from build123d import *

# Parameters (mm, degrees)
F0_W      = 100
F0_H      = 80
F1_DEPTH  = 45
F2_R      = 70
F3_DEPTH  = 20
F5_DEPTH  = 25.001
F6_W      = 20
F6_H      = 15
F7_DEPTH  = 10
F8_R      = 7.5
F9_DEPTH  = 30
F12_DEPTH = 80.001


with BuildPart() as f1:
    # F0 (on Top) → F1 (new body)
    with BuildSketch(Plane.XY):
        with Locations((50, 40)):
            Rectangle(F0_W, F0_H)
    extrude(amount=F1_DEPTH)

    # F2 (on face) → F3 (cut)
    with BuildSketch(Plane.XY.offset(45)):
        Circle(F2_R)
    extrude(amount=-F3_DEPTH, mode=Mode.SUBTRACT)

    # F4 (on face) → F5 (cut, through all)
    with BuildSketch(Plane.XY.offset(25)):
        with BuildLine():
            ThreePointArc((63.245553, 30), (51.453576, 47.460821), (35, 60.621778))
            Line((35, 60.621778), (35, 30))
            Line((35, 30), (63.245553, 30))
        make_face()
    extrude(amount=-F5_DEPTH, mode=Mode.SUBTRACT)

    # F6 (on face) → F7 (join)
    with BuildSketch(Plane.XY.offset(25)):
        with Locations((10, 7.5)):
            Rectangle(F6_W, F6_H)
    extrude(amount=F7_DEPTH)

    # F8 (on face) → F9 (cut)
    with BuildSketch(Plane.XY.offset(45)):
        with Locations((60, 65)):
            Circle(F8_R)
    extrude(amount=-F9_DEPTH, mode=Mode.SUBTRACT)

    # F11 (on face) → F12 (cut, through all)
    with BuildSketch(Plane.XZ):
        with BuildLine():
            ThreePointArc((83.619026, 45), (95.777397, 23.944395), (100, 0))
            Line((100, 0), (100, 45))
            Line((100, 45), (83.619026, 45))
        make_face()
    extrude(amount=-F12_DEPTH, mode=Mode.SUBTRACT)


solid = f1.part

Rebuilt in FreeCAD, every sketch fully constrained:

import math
import FreeCAD as App
import Part
import Sketcher
Q = App.Units.Quantity

doc = App.newDocument("Part")
body = doc.addObject("PartDesign::Body", "Body")

# Sketch on XY plane
sketch1 = body.newObject("Sketcher::SketchObject", "Sketch")
sketch1.AttachmentSupport = (doc.getObject("XY_Plane"), [""])
sketch1.MapMode = "FlatFace"
sketch1.addGeometry([
    Part.LineSegment(App.Vector(0, 80, 0), App.Vector(0, 0, 0)),
    Part.LineSegment(App.Vector(0, 0, 0), App.Vector(100, 0, 0)),
    Part.LineSegment(App.Vector(100, 0, 0), App.Vector(100, 80, 0)),
    Part.LineSegment(App.Vector(100, 80, 0), App.Vector(0, 80, 0)),
], False)
sketch1.addConstraint([
    Sketcher.Constraint("Coincident", 0, 2, 1, 1),
    Sketcher.Constraint("Coincident", 1, 2, 2, 1),
    Sketcher.Constraint("Coincident", 2, 2, 3, 1),
    Sketcher.Constraint("Coincident", 3, 2, 0, 1),
    Sketcher.Constraint("Vertical", 0),
    Sketcher.Constraint("Horizontal", 1),
    Sketcher.Constraint("Vertical", 2),
    Sketcher.Constraint("Horizontal", 3),
    Sketcher.Constraint("Coincident", 0, 2, -1, 1),
    Sketcher.Constraint("DistanceX", 1, 1, 1, 2, Q("100 mm")),
    Sketcher.Constraint("DistanceY", 0, 2, 0, 1, Q("80 mm")),
])
pad1 = body.newObject("PartDesign::Pad", "Pad")
pad1.Profile = sketch1
pad1.Length = 45

# Sketch on XY plane
sketch2 = body.newObject("Sketcher::SketchObject", "Sketch001")
sketch2.AttachmentSupport = (doc.getObject("XY_Plane"), [""])
sketch2.MapMode = "FlatFace"
sketch2.AttachmentOffset = App.Placement(App.Vector(0, 0, 45), App.Rotation())
sketch2.addGeometry(Part.Circle(App.Vector(0, 0, 0), App.Vector(0, 0, 1), 70), False)
sketch2.addConstraint([
    Sketcher.Constraint("Coincident", 0, 3, -1, 1),
    Sketcher.Constraint("Diameter", 0, Q("140 mm")),
])
pocket1 = body.newObject("PartDesign::Pocket", "Pocket")
pocket1.Profile = sketch2
pocket1.Length = 20

# Sketch on XY plane
sketch3 = body.newObject("Sketcher::SketchObject", "Sketch002")
sketch3.AttachmentSupport = (doc.getObject("XY_Plane"), [""])
sketch3.MapMode = "FlatFace"
sketch3.AttachmentOffset = App.Placement(App.Vector(0, 0, 25), App.Rotation())
sketch3.addGeometry([
    Part.ArcOfCircle(Part.Circle(App.Vector(0, 0, 0), App.Vector(0, 0, 1), 70), math.radians(25), math.radians(60)),
    Part.LineSegment(App.Vector(35, 61, 0), App.Vector(35, 30, 0)),
    Part.LineSegment(App.Vector(35, 30, 0), App.Vector(63, 30, 0)),
], False)
sketch3.addConstraint([
    Sketcher.Constraint("Coincident", 0, 2, 1, 1),
    Sketcher.Constraint("Coincident", 1, 2, 2, 1),
    Sketcher.Constraint("Coincident", 2, 2, 0, 1),
    Sketcher.Constraint("Vertical", 1),
    Sketcher.Constraint("Horizontal", 2),
    Sketcher.Constraint("Coincident", 0, 3, -1, 1),
    Sketcher.Constraint("DistanceX", -1, 1, 0, 2, Q("35 mm")),
    Sketcher.Constraint("DistanceY", -1, 1, 1, 2, Q("30 mm")),
    Sketcher.Constraint("Radius", 0, Q("69.999993 mm")),
])
pocket2 = body.newObject("PartDesign::Pocket", "Pocket001")
pocket2.Profile = sketch3
pocket2.Type = "ThroughAll"

# Sketch on XY plane
sketch4 = body.newObject("Sketcher::SketchObject", "Sketch003")
sketch4.AttachmentSupport = (doc.getObject("XY_Plane"), [""])
sketch4.MapMode = "FlatFace"
sketch4.AttachmentOffset = App.Placement(App.Vector(0, 0, 25), App.Rotation())
sketch4.addGeometry([
    Part.LineSegment(App.Vector(0, 15, 0), App.Vector(0, 0, 0)),
    Part.LineSegment(App.Vector(0, 0, 0), App.Vector(20, 0, 0)),
    Part.LineSegment(App.Vector(20, 0, 0), App.Vector(20, 15, 0)),
    Part.LineSegment(App.Vector(20, 15, 0), App.Vector(0, 15, 0)),
], False)
sketch4.addConstraint([
    Sketcher.Constraint("Coincident", 0, 2, 1, 1),
    Sketcher.Constraint("Coincident", 1, 2, 2, 1),
    Sketcher.Constraint("Coincident", 2, 2, 3, 1),
    Sketcher.Constraint("Coincident", 3, 2, 0, 1),
    Sketcher.Constraint("Vertical", 0),
    Sketcher.Constraint("Horizontal", 1),
    Sketcher.Constraint("Vertical", 2),
    Sketcher.Constraint("Horizontal", 3),
    Sketcher.Constraint("Coincident", 0, 2, -1, 1),
    Sketcher.Constraint("DistanceX", 1, 1, 1, 2, Q("20 mm")),
    Sketcher.Constraint("DistanceY", 0, 2, 0, 1, Q("15 mm")),
])
pad2 = body.newObject("PartDesign::Pad", "Pad001")
pad2.Profile = sketch4
pad2.Length = 10

# Sketch on XY plane
sketch5 = body.newObject("Sketcher::SketchObject", "Sketch004")
sketch5.AttachmentSupport = (doc.getObject("XY_Plane"), [""])
sketch5.MapMode = "FlatFace"
sketch5.AttachmentOffset = App.Placement(App.Vector(0, 0, 45), App.Rotation())
sketch5.addGeometry(Part.Circle(App.Vector(60, 65, 0), App.Vector(0, 0, 1), 8), False)
sketch5.addConstraint([
    Sketcher.Constraint("Diameter", 0, Q("15 mm")),
    Sketcher.Constraint("DistanceX", -1, 1, 0, 3, Q("60 mm")),
    Sketcher.Constraint("DistanceY", -1, 1, 0, 3, Q("65 mm")),
])
pocket3 = body.newObject("PartDesign::Pocket", "Pocket002")
pocket3.Profile = sketch5
pocket3.Length = 30

# Sketch on XZ plane
sketch6 = body.newObject("Sketcher::SketchObject", "Sketch005")
sketch6.AttachmentSupport = (doc.getObject("XZ_Plane"), [""])
sketch6.MapMode = "FlatFace"
sketch6.addGeometry([
    Part.ArcOfCircle(Part.Circle(App.Vector(30, 0, 0), App.Vector(0, 0, 1), 70), math.radians(0), math.radians(40)),
    Part.LineSegment(App.Vector(100, 0, 0), App.Vector(100, 45, 0)),
    Part.LineSegment(App.Vector(100, 45, 0), App.Vector(84, 45, 0)),
], False)
sketch6.addConstraint([
    Sketcher.Constraint("Tangent", 0, 1, 1, 1),
    Sketcher.Constraint("Coincident", 1, 2, 2, 1),
    Sketcher.Constraint("Coincident", 2, 2, 0, 2),
    Sketcher.Constraint("Vertical", 1),
    Sketcher.Constraint("Horizontal", 2),
    Sketcher.Constraint("PointOnObject", 0, 3, -1),
    Sketcher.Constraint("DistanceY", 1, 1, 1, 2, Q("45 mm")),
    Sketcher.Constraint("DistanceX", -1, 1, 0, 1, Q("100 mm")),
    Sketcher.Constraint("Radius", 0, Q("69.999996 mm")),
])
pocket4 = body.newObject("PartDesign::Pocket", "Pocket003")
pocket4.Profile = sketch6
pocket4.Type = "ThroughAll"

doc.recompute()
